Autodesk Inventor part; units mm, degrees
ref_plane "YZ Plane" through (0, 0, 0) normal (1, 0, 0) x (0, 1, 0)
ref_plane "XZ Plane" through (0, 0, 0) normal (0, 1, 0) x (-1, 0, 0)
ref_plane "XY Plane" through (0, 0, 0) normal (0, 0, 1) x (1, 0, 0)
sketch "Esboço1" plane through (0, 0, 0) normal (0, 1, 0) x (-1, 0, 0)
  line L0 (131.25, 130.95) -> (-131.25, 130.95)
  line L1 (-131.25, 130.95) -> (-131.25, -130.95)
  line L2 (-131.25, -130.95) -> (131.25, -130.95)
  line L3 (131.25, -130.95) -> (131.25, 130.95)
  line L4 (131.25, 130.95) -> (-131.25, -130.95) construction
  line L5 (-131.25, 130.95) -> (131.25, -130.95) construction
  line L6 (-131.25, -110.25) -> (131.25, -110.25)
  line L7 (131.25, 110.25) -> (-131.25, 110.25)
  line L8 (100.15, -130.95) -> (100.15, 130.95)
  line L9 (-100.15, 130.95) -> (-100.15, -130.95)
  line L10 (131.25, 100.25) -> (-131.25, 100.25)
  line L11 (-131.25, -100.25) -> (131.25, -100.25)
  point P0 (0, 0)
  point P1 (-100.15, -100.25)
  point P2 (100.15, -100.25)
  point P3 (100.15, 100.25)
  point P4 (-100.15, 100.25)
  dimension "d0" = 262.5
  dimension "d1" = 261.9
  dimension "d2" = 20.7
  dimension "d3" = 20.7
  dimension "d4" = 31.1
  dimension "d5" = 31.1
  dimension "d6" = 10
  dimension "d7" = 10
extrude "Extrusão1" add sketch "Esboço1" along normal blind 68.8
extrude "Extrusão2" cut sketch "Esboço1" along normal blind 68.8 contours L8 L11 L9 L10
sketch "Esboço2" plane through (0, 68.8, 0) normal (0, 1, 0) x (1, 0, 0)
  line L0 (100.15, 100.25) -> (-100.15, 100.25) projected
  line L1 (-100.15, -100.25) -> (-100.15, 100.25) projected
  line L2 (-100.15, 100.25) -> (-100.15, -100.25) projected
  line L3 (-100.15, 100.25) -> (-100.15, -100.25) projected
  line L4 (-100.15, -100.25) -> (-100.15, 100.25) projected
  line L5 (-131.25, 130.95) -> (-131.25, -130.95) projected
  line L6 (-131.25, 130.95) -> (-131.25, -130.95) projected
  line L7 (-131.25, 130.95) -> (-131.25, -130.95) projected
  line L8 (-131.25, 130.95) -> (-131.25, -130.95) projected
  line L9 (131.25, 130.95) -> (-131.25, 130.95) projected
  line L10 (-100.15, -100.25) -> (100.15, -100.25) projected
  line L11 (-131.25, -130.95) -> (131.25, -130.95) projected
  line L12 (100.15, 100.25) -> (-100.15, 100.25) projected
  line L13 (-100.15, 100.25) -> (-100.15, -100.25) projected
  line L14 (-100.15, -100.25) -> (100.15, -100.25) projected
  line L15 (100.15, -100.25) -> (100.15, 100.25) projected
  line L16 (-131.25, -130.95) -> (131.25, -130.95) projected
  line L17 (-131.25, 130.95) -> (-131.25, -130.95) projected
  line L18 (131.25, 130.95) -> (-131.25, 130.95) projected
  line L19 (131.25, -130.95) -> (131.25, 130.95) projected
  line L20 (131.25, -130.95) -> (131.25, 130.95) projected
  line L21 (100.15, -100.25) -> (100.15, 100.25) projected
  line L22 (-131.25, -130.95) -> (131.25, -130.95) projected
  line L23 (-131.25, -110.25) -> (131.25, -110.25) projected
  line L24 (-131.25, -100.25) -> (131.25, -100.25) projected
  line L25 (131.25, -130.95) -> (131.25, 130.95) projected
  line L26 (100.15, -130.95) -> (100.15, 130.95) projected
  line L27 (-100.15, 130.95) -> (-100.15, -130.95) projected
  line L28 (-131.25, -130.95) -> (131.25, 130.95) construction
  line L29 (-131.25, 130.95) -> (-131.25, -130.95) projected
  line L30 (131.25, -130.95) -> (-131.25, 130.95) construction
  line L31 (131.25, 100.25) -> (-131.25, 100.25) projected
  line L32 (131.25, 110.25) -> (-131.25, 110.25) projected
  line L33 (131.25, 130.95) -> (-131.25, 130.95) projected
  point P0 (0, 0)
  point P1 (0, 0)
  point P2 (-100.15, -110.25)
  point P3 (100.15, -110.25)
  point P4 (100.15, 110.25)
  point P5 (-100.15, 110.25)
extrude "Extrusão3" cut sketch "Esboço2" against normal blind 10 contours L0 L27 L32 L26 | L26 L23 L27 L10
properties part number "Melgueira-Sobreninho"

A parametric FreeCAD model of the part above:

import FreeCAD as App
import Part
import Sketcher

V = App.Vector
Q = App.Units.Quantity


def add_polygon(sketch, points):
    """Adds a closed chain of lines whose ends are joined by coincident constraints."""
    first, n = sketch.GeometryCount, len(points)
    for a, b in zip(points, points[1:] + points[:1]):
        sketch.addGeometry(Part.LineSegment(App.Vector(*a, 0), App.Vector(*b, 0)), False)
    for i in range(n):
        sketch.addConstraint(Sketcher.Constraint("Coincident", first + i, 2, first + (i + 1) % n, 1))

doc = App.newDocument("Part")
body = doc.addObject("PartDesign::Body", "Body")

sketch1 = doc.addObject("Sketcher::SketchObject", "Sketch")
body.addObject(sketch1)
sketch1.AttachmentSupport = (doc.XZ_Plane, [""])
sketch1.MapMode = "FlatFace"
add_polygon(sketch1, [(-131, 131), (131, 131), (131, -131), (-131, -131)])
sketch1.addConstraint([
    Sketcher.Constraint("Horizontal", 0),
    Sketcher.Constraint("Vertical", 1),
    Sketcher.Constraint("Horizontal", 2),
    Sketcher.Constraint("Vertical", 3),
    Sketcher.Constraint("Symmetric", 0, 2, 2, 2, -1, 1),
    Sketcher.Constraint("DistanceX", 0, 1, 0, 2, Q("262.5 mm")),
    Sketcher.Constraint("DistanceY", 1, 2, 1, 1, Q("261.9 mm")),
])
pad1 = doc.addObject("PartDesign::Pad", "Pad")
body.addObject(pad1)
pad1.Profile = sketch1
pad1.Length = 68.8
pad1.Reversed = True

sketch2 = doc.addObject("Sketcher::SketchObject", "Sketch001")
body.addObject(sketch2)
sketch2.AttachmentSupport = (doc.XZ_Plane, [""])
sketch2.MapMode = "FlatFace"
add_polygon(sketch2, [(-100, -100), (-100, 100), (100, 100), (100, -100)])
sketch2.addConstraint([
    Sketcher.Constraint("Vertical", 0),
    Sketcher.Constraint("Horizontal", 1),
    Sketcher.Constraint("Vertical", 2),
    Sketcher.Constraint("Horizontal", 3),
    Sketcher.Constraint("Symmetric", 0, 2, 2, 2, -1, 1),
    Sketcher.Constraint("DistanceX", 1, 1, 1, 2, Q("200.3 mm")),
    Sketcher.Constraint("DistanceY", 0, 1, 0, 2, Q("200.5 mm")),
])
pocket1 = doc.addObject("PartDesign::Pocket", "Pocket")
body.addObject(pocket1)
pocket1.Profile = sketch2
pocket1.Length = 68.8

sketch3 = doc.addObject("Sketcher::SketchObject", "Sketch002")
body.addObject(sketch3)
sketch3.AttachmentSupport = (doc.XZ_Plane, [""])
sketch3.MapMode = "FlatFace"
sketch3.AttachmentOffset = App.Placement(V(0, 0, -68.8), App.Rotation())
add_polygon(sketch3, [(-100, -100), (100, -100), (100, -110), (-100, -110)])
add_polygon(sketch3, [(100, 110), (100, 100), (-100, 100), (-100, 110)])
sketch3.addConstraint([
    Sketcher.Constraint("Horizontal", 0),
    Sketcher.Constraint("Vertical", 1),
    Sketcher.Constraint("Horizontal", 2),
    Sketcher.Constraint("Vertical", 3),
    Sketcher.Constraint("Vertical", 4),
    Sketcher.Constraint("Horizontal", 5),
    Sketcher.Constraint("Vertical", 6),
    Sketcher.Constraint("Horizontal", 7),
    Sketcher.Constraint("Symmetric", 3, 2, 4, 2, -1, 1),
    Sketcher.Constraint("Symmetric", 1, 2, 6, 2, -1, 1),
    Sketcher.Constraint("Vertical", 1, 2, 4, 2),
    Sketcher.Constraint("DistanceY", 1, 2, 1, 1, Q("10 mm")),
    Sketcher.Constraint("DistanceX", 0, 1, 0, 2, Q("200.3 mm")),
    Sketcher.Constraint("DistanceY", 0, 2, 4, 2, Q("200.5 mm")),
])
pocket2 = doc.addObject("PartDesign::Pocket", "Pocket001")
body.addObject(pocket2)
pocket2.Profile = sketch3
pocket2.Length = 10
pocket2.Reversed = True

doc.recompute()
